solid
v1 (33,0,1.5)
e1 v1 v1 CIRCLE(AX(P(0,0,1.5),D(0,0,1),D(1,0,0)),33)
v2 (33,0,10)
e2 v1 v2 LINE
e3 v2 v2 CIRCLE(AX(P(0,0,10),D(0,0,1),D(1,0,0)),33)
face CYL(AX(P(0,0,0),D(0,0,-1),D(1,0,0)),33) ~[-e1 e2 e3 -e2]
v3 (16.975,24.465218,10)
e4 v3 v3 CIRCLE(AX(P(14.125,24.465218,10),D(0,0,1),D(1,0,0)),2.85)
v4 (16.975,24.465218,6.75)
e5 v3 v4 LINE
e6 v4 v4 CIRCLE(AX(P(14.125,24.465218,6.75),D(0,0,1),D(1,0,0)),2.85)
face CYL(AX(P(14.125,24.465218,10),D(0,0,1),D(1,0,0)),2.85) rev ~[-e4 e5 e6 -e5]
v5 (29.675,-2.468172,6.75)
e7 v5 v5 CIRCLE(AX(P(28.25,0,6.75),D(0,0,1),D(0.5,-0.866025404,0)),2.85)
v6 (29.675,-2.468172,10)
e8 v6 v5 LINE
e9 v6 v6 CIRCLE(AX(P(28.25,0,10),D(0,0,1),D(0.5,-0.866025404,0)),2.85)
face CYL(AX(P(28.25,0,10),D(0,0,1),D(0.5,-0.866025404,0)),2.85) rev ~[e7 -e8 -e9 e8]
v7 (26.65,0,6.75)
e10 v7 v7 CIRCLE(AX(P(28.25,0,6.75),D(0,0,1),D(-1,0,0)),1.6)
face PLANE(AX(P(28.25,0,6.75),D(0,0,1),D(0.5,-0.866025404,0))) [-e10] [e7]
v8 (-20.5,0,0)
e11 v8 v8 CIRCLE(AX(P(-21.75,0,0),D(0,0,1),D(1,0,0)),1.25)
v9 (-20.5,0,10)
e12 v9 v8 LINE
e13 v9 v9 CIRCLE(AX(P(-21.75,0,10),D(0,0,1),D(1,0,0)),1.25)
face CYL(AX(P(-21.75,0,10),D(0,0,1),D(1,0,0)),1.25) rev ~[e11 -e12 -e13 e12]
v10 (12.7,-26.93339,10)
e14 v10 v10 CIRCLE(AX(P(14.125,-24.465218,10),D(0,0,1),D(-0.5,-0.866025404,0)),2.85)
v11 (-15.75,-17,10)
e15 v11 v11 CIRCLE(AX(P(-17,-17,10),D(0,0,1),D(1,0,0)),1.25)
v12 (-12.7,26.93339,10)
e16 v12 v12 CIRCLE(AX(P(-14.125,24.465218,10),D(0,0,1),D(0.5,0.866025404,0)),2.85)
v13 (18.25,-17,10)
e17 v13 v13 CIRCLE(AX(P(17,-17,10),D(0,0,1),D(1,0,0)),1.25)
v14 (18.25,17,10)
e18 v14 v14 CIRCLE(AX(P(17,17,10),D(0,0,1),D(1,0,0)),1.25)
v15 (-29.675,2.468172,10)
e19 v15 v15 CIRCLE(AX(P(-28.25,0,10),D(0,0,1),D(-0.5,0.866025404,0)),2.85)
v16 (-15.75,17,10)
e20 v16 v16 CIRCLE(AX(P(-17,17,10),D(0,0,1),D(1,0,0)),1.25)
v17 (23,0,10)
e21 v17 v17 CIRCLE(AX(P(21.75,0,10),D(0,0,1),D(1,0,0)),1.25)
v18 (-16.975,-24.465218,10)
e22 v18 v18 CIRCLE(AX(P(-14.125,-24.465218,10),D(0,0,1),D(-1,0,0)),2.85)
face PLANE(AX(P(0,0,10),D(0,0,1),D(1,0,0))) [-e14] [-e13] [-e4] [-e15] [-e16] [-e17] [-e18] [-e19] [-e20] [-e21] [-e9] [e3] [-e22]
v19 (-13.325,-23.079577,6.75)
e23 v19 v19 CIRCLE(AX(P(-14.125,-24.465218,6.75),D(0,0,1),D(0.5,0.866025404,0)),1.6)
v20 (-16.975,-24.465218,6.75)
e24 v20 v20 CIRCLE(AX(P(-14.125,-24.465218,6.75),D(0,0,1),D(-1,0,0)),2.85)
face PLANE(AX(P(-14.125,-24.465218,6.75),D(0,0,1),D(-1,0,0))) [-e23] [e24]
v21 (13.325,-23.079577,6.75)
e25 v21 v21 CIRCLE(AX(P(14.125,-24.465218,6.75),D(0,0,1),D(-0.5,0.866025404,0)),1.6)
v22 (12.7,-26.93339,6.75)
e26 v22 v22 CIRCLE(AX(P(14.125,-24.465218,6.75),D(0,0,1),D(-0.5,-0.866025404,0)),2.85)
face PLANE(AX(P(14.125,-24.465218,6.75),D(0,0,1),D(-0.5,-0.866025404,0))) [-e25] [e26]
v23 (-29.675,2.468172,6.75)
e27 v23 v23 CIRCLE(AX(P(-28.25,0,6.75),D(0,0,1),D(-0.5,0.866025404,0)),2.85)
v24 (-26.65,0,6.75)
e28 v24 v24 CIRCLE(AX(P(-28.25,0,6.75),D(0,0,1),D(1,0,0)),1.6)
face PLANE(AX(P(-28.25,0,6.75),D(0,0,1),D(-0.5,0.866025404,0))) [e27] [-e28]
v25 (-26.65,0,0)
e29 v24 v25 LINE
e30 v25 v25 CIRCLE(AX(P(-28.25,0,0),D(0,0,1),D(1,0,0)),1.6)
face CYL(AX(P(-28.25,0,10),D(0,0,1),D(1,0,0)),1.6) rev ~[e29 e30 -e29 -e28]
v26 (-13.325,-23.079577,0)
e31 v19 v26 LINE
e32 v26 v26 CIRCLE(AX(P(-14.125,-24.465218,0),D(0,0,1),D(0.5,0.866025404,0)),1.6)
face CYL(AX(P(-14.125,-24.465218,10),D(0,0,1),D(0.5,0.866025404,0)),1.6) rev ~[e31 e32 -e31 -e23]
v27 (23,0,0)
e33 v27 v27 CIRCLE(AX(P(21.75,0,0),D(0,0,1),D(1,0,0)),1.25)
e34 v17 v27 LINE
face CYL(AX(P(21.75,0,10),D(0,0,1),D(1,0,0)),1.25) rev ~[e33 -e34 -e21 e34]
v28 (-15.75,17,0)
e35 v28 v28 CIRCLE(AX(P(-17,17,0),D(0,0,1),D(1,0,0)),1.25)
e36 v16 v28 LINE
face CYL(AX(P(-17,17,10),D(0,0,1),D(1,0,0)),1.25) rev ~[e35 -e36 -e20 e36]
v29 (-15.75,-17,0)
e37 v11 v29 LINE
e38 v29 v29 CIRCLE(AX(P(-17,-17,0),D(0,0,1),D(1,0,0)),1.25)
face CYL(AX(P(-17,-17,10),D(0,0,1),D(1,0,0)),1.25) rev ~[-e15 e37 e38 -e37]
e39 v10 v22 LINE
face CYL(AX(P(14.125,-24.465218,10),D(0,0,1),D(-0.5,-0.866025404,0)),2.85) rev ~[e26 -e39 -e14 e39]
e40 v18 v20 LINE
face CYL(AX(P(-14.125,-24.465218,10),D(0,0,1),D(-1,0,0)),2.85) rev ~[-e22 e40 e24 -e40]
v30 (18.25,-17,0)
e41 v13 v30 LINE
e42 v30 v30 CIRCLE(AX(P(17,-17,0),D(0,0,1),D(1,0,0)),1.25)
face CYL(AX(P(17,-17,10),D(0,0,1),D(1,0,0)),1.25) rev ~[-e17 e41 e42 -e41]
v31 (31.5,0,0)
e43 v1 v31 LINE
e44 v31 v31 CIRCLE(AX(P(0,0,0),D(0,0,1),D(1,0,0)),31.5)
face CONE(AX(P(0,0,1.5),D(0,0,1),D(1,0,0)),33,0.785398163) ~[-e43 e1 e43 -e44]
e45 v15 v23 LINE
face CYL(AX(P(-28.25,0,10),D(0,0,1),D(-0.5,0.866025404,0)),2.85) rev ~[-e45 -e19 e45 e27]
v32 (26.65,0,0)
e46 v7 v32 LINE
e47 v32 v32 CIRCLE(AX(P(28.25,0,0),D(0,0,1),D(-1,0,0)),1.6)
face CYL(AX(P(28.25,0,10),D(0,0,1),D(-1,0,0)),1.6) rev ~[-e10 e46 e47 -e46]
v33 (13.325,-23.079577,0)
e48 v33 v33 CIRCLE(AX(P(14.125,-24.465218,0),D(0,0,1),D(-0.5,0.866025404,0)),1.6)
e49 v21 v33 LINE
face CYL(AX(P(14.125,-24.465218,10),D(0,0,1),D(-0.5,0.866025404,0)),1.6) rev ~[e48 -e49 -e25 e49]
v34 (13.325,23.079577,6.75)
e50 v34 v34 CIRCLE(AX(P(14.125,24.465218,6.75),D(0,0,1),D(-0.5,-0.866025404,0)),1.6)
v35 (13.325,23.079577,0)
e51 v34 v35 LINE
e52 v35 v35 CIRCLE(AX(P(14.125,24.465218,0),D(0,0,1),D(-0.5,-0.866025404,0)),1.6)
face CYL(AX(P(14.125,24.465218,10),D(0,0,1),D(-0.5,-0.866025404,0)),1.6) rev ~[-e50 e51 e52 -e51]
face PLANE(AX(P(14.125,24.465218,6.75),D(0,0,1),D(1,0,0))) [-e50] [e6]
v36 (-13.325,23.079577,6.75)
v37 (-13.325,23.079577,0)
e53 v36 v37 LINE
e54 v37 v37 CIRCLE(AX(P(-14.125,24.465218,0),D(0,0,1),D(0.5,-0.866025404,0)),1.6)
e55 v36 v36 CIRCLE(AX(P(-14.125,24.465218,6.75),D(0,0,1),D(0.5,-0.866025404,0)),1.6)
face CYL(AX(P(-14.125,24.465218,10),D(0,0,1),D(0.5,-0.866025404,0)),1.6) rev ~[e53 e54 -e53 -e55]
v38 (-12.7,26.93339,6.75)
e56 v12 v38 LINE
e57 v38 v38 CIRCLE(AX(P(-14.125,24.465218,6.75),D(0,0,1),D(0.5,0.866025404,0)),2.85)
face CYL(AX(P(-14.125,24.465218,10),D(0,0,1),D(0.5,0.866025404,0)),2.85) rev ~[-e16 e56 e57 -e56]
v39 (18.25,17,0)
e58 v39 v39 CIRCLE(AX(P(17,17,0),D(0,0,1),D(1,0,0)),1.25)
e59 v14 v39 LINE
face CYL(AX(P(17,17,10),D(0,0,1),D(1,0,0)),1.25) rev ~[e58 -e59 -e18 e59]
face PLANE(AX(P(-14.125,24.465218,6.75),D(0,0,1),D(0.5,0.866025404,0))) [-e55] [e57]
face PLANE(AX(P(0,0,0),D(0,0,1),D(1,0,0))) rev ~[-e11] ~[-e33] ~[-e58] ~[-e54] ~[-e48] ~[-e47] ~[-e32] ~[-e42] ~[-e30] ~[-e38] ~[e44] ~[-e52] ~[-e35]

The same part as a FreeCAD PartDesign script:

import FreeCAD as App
import Part
import Sketcher

V = App.Vector
Q = App.Units.Quantity


def edges_at(feature, points):
    """Names of the edges that pass closest to the given points."""
    edges = feature.Shape.Edges
    near = lambda p: min(range(len(edges)), key=lambda i: edges[i].distToShape(Part.Vertex(*p))[0])
    return sorted({f"Edge{near(p) + 1}" for p in points})

doc = App.newDocument("Part")
params = doc.addObject("Spreadsheet::Sheet", "Params")
for row, (alias, value) in enumerate([
    ("sketch1_diameter", "66 mm"),
    ("pad1_length", "10 mm"),
    ("chamfer_size", "1.5 mm"),
    ("sketch2_diameter", "3.2 mm"),
    ("sketch3_diameter", "5.7 mm"),
    ("pocket2_length", "3.25 mm"),
    ("sketch4_diameter", "2.5 mm"),
    ("sketch5_diameter", "2.5 mm"),
], start=1):
    params.set(f"A{row}", alias)
    params.set(f"B{row}", "=" + value)
    params.setAlias(f"B{row}", alias)

body = doc.addObject("PartDesign::Body", "Body")

# Sketch on XY plane
sketch1 = body.newObject("Sketcher::SketchObject", "Sketch")
sketch1.AttachmentSupport = (doc.getObject("XY_Plane"), [""])
sketch1.MapMode = "FlatFace"
sketch1.addGeometry(Part.Circle(V(0, 0, 0), V(0, 0, 1), 33), False)
sketch1.addConstraint([
    Sketcher.Constraint("Coincident", 0, 3, -1, 1),
    Sketcher.Constraint("Diameter", 0, Q("66 mm")),
])
sketch1.setExpression("Constraints[1]", "Params.sketch1_diameter")
pad1 = body.newObject("PartDesign::Pad", "Pad")
pad1.Profile = sketch1
pad1.setExpression("Length", "Params.pad1_length")
doc.recompute()

chamfer = body.newObject("PartDesign::Chamfer", "Chamfer")
chamfer.Base = (pad1, edges_at(pad1, [(-33, 0, 0)]))
chamfer.setExpression("Size", "Params.chamfer_size")

# Sketch on XY plane
sketch2 = body.newObject("Sketcher::SketchObject", "Sketch001")
sketch2.AttachmentSupport = (doc.getObject("XY_Plane"), [""])
sketch2.MapMode = "FlatFace"
sketch2.AttachmentOffset = App.Placement(V(0, 0, 10), App.Rotation())
sketch2.addGeometry(Part.Circle(V(-28.25, 0, 0), V(0, 0, 1), 1.6), False)
sketch2.addConstraint([
    Sketcher.Constraint("PointOnObject", 0, 3, -1),
    Sketcher.Constraint("Diameter", 0, Q("3.2 mm")),
    Sketcher.Constraint("DistanceX", 0, 3, -1, 1, Q("28.25 mm")),
])
sketch2.setExpression("Constraints[1]", "Params.sketch2_diameter")
pocket1 = body.newObject("PartDesign::Pocket", "Pocket")
pocket1.Profile = sketch2
pocket1.Type = "ThroughAll"
doc.recompute()

polarpattern = body.newObject("PartDesign::PolarPattern", "PolarPattern")
polarpattern.Originals = [pocket1]
polarpattern.Axis = (doc.getObject("Z_Axis"), [""])
polarpattern.Angle = 360
polarpattern.Occurrences = 6
body.Tip = polarpattern

# Sketch on XY plane
sketch3 = body.newObject("Sketcher::SketchObject", "Sketch002")
sketch3.AttachmentSupport = (doc.getObject("XY_Plane"), [""])
sketch3.MapMode = "FlatFace"
sketch3.AttachmentOffset = App.Placement(V(0, 0, 10), App.Rotation())
sketch3.addGeometry(Part.Circle(V(14.125, 24.465218, 0), V(0, 0, 1), 2.85), False)
sketch3.addConstraint([
    Sketcher.Constraint("Diameter", 0, Q("5.7 mm")),
    Sketcher.Constraint("DistanceX", -1, 1, 0, 3, Q("14.125 mm")),
    Sketcher.Constraint("DistanceY", -1, 1, 0, 3, Q("24.465218 mm")),
])
sketch3.setExpression("Constraints[0]", "Params.sketch3_diameter")
pocket2 = body.newObject("PartDesign::Pocket", "Pocket001")
pocket2.Profile = sketch3
pocket2.setExpression("Length", "Params.pocket2_length")
doc.recompute()

polarpattern2 = body.newObject("PartDesign::PolarPattern", "PolarPattern001")
polarpattern2.Originals = [pocket2]
polarpattern2.Axis = (doc.getObject("Z_Axis"), [""])
polarpattern2.Angle = 360
polarpattern2.Occurrences = 6
body.Tip = polarpattern2

# Sketch on XY plane
sketch4 = body.newObject("Sketcher::SketchObject", "Sketch003")
sketch4.AttachmentSupport = (doc.getObject("XY_Plane"), [""])
sketch4.MapMode = "FlatFace"
sketch4.AttachmentOffset = App.Placement(V(0, 0, 10), App.Rotation())
sketch4.addGeometry([
    Part.Circle(V(-17, 17, 0), V(0, 0, 1), 1.25),
    Part.Circle(V(17, 17, 0), V(0, 0, 1), 1.25),
    Part.Circle(V(-17, -17, 0), V(0, 0, 1), 1.25),
    Part.Circle(V(17, -17, 0), V(0, 0, 1), 1.25),
], False)
sketch4.addConstraint([
    Sketcher.Constraint("Equal", 0, 1),
    Sketcher.Constraint("Equal", 1, 2),
    Sketcher.Constraint("Equal", 2, 3),
    Sketcher.Constraint("Symmetric", 1, 3, 2, 3, -1, 1),
    Sketcher.Constraint("Symmetric", 0, 3, 3, 3, -1, 1),
    Sketcher.Constraint("Symmetric", 0, 3, 1, 3, -2),
    Sketcher.Constraint("Diameter", 0, Q("2.5 mm")),
    Sketcher.Constraint("DistanceX", 0, 3, -1, 1, Q("17 mm")),
    Sketcher.Constraint("DistanceY", -1, 1, 0, 3, Q("17 mm")),
])
sketch4.setExpression("Constraints[6]", "Params.sketch4_diameter")
pocket3 = body.newObject("PartDesign::Pocket", "Pocket002")
pocket3.Profile = sketch4
pocket3.Type = "ThroughAll"

# Sketch on XY plane
sketch5 = body.newObject("Sketcher::SketchObject", "Sketch004")
sketch5.AttachmentSupport = (doc.getObject("XY_Plane"), [""])
sketch5.MapMode = "FlatFace"
sketch5.AttachmentOffset = App.Placement(V(0, 0, 10), App.Rotation())
sketch5.addGeometry([
    Part.Circle(V(-21.75, 0, 0), V(0, 0, 1), 1.25),
    Part.Circle(V(21.75, 0, 0), V(0, 0, 1), 1.25),
], False)
sketch5.addConstraint([
    Sketcher.Constraint("Equal", 0, 1),
    Sketcher.Constraint("Symmetric", 0, 3, 1, 3, -1, 1),
    Sketcher.Constraint("PointOnObject", 0, 3, -1),
    Sketcher.Constraint("Diameter", 0, Q("2.5 mm")),
    Sketcher.Constraint("DistanceX", 0, 3, 1, 3, Q("43.5 mm")),
])
sketch5.setExpression("Constraints[3]", "Params.sketch5_diameter")
pocket4 = body.newObject("PartDesign::Pocket", "Pocket003")
pocket4.Profile = sketch5
pocket4.Type = "ThroughAll"

doc.recompute()
